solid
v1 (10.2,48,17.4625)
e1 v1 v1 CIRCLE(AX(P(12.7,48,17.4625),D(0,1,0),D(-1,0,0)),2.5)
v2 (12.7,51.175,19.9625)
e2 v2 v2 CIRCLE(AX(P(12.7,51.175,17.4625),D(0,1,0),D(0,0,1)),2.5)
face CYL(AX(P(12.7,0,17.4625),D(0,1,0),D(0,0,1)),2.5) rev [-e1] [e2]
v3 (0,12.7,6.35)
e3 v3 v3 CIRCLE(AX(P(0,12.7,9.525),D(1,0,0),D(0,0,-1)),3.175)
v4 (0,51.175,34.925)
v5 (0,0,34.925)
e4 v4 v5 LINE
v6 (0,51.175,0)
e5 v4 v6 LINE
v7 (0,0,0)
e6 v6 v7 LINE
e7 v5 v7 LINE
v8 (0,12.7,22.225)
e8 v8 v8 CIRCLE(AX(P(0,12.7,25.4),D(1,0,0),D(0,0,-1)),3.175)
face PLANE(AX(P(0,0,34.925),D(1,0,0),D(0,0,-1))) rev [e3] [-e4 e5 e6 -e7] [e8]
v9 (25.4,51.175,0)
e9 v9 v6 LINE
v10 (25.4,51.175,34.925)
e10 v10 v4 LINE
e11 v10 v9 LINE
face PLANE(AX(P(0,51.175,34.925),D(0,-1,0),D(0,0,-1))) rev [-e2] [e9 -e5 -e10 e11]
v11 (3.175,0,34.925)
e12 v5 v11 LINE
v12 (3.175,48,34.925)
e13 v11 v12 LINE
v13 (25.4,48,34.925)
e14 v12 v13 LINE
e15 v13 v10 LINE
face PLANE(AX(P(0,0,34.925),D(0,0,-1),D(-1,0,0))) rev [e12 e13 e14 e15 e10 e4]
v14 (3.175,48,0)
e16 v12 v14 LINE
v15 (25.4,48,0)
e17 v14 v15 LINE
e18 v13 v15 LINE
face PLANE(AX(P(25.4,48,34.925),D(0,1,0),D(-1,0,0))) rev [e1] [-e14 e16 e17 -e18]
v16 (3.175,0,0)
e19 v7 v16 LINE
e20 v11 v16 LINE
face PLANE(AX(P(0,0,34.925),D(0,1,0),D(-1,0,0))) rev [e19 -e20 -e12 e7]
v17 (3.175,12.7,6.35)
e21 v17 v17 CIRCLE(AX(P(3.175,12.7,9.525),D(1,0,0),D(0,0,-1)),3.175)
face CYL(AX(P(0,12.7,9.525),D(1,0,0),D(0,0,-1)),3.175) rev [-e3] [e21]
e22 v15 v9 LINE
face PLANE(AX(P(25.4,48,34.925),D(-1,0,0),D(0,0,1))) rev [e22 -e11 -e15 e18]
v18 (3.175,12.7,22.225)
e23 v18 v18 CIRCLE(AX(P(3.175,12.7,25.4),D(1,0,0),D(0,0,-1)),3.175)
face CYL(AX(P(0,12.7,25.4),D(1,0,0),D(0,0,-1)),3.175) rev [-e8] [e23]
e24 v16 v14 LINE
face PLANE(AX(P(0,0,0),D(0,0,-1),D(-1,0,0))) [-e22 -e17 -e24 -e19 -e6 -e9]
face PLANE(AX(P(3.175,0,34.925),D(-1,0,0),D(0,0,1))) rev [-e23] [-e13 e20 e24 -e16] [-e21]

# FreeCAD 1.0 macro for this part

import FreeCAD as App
import Part
import Sketcher

V = App.Vector
Q = App.Units.Quantity


def add_polygon(sketch, points):
    """Adds a closed chain of lines whose ends are joined by coincident constraints."""
    first, n = sketch.GeometryCount, len(points)
    for a, b in zip(points, points[1:] + points[:1]):
        sketch.addGeometry(Part.LineSegment(App.Vector(*a, 0), App.Vector(*b, 0)), False)
    for i in range(n):
        sketch.addConstraint(Sketcher.Constraint("Coincident", first + i, 2, first + (i + 1) % n, 1))

doc = App.newDocument("Part")
body = doc.addObject("PartDesign::Body", "Body")

sketch1 = body.newObject("Sketcher::SketchObject", "Sketch")
sketch1.AttachmentSupport = (doc.getObject("XY_Plane"), [""])
sketch1.MapMode = "FlatFace"
add_polygon(sketch1, [(0, 0), (3.2, 0), (3.2, 48), (25.4, 48), (25.4, 51.2), (0, 51.2)])
sketch1.addConstraint(Sketcher.Constraint("Horizontal", 0))
sketch1.addConstraint(Sketcher.Constraint("Vertical", 1))
sketch1.addConstraint(Sketcher.Constraint("Horizontal", 2))
sketch1.addConstraint(Sketcher.Constraint("Vertical", 3))
sketch1.addConstraint(Sketcher.Constraint("Horizontal", 4))
sketch1.addConstraint(Sketcher.Constraint("Vertical", 5))
sketch1.addConstraint(Sketcher.Constraint("Coincident", 5, 2, -1, 1))
sketch1.addConstraint(Sketcher.Constraint("Equal", 0, 3))
sketch1.addConstraint(Sketcher.Constraint("DistanceX", 4, 2, 4, 1, Q("1 in")))
sketch1.addConstraint(Sketcher.Constraint("DistanceX", 0, 1, 0, 2, Q("0.125 in")))
sketch1.addConstraint(Sketcher.Constraint("DistanceY", 1, 1, 1, 2, 48.0))
pad1 = body.newObject("PartDesign::Pad", "Pad")
pad1.Profile = sketch1
pad1.Length = Q("1.375 in")

sketch2 = body.newObject("Sketcher::SketchObject", "Sketch001")
sketch2.AttachmentSupport = (doc.getObject("YZ_Plane"), [""])
sketch2.MapMode = "FlatFace"
sketch2.AttachmentOffset = App.Placement(V(0, 0, 0.125 * 25.4), App.Rotation())
sketch2.addGeometry(Part.Circle(V(12.7, 25.4, 0), V(0, 0, 1), 3.2), False)
sketch2.addGeometry(Part.Circle(V(12.7, 9.5, 0), V(0, 0, 1), 3.2), False)
sketch2.addConstraint(Sketcher.Constraint("Equal", 0, 1))
sketch2.addConstraint(Sketcher.Constraint("Vertical", 0, 3, 1, 3))
sketch2.addConstraint(Sketcher.Constraint("Diameter", 0, Q("0.25 in")))
sketch2.addConstraint(Sketcher.Constraint("DistanceY", -1, 1, 0, 3, Q("1 in")))
sketch2.addConstraint(Sketcher.Constraint("DistanceX", -1, 1, 0, 3, Q("0.5 in")))
sketch2.addConstraint(Sketcher.Constraint("DistanceY", -1, 1, 1, 3, Q("0.375 in")))
pocket1 = body.newObject("PartDesign::Pocket", "Pocket")
pocket1.Profile = sketch2
pocket1.Type = "ThroughAll"

sketch3 = body.newObject("Sketcher::SketchObject", "Sketch002")
sketch3.AttachmentSupport = (doc.getObject("XZ_Plane"), [""])
sketch3.MapMode = "FlatFace"
sketch3.AttachmentOffset = App.Placement(V(0, 0, -51.175), App.Rotation())
sketch3.addGeometry(Part.Circle(V(12.7, 17.5, 0), V(0, 0, 1), 2.5), False)
sketch3.addConstraint(Sketcher.Constraint("DistanceX", -1, 1, 0, 3, Q("0.5 in")))
sketch3.addConstraint(Sketcher.Constraint("Diameter", 0, 5.0))
sketch3.addConstraint(Sketcher.Constraint("DistanceY", -1, 1, 0, 3, Q("0.6875 in")))
pocket2 = body.newObject("PartDesign::Pocket", "Pocket001")
pocket2.Profile = sketch3
pocket2.Type = "ThroughAll"
pocket2.Reversed = True

doc.recompute()
